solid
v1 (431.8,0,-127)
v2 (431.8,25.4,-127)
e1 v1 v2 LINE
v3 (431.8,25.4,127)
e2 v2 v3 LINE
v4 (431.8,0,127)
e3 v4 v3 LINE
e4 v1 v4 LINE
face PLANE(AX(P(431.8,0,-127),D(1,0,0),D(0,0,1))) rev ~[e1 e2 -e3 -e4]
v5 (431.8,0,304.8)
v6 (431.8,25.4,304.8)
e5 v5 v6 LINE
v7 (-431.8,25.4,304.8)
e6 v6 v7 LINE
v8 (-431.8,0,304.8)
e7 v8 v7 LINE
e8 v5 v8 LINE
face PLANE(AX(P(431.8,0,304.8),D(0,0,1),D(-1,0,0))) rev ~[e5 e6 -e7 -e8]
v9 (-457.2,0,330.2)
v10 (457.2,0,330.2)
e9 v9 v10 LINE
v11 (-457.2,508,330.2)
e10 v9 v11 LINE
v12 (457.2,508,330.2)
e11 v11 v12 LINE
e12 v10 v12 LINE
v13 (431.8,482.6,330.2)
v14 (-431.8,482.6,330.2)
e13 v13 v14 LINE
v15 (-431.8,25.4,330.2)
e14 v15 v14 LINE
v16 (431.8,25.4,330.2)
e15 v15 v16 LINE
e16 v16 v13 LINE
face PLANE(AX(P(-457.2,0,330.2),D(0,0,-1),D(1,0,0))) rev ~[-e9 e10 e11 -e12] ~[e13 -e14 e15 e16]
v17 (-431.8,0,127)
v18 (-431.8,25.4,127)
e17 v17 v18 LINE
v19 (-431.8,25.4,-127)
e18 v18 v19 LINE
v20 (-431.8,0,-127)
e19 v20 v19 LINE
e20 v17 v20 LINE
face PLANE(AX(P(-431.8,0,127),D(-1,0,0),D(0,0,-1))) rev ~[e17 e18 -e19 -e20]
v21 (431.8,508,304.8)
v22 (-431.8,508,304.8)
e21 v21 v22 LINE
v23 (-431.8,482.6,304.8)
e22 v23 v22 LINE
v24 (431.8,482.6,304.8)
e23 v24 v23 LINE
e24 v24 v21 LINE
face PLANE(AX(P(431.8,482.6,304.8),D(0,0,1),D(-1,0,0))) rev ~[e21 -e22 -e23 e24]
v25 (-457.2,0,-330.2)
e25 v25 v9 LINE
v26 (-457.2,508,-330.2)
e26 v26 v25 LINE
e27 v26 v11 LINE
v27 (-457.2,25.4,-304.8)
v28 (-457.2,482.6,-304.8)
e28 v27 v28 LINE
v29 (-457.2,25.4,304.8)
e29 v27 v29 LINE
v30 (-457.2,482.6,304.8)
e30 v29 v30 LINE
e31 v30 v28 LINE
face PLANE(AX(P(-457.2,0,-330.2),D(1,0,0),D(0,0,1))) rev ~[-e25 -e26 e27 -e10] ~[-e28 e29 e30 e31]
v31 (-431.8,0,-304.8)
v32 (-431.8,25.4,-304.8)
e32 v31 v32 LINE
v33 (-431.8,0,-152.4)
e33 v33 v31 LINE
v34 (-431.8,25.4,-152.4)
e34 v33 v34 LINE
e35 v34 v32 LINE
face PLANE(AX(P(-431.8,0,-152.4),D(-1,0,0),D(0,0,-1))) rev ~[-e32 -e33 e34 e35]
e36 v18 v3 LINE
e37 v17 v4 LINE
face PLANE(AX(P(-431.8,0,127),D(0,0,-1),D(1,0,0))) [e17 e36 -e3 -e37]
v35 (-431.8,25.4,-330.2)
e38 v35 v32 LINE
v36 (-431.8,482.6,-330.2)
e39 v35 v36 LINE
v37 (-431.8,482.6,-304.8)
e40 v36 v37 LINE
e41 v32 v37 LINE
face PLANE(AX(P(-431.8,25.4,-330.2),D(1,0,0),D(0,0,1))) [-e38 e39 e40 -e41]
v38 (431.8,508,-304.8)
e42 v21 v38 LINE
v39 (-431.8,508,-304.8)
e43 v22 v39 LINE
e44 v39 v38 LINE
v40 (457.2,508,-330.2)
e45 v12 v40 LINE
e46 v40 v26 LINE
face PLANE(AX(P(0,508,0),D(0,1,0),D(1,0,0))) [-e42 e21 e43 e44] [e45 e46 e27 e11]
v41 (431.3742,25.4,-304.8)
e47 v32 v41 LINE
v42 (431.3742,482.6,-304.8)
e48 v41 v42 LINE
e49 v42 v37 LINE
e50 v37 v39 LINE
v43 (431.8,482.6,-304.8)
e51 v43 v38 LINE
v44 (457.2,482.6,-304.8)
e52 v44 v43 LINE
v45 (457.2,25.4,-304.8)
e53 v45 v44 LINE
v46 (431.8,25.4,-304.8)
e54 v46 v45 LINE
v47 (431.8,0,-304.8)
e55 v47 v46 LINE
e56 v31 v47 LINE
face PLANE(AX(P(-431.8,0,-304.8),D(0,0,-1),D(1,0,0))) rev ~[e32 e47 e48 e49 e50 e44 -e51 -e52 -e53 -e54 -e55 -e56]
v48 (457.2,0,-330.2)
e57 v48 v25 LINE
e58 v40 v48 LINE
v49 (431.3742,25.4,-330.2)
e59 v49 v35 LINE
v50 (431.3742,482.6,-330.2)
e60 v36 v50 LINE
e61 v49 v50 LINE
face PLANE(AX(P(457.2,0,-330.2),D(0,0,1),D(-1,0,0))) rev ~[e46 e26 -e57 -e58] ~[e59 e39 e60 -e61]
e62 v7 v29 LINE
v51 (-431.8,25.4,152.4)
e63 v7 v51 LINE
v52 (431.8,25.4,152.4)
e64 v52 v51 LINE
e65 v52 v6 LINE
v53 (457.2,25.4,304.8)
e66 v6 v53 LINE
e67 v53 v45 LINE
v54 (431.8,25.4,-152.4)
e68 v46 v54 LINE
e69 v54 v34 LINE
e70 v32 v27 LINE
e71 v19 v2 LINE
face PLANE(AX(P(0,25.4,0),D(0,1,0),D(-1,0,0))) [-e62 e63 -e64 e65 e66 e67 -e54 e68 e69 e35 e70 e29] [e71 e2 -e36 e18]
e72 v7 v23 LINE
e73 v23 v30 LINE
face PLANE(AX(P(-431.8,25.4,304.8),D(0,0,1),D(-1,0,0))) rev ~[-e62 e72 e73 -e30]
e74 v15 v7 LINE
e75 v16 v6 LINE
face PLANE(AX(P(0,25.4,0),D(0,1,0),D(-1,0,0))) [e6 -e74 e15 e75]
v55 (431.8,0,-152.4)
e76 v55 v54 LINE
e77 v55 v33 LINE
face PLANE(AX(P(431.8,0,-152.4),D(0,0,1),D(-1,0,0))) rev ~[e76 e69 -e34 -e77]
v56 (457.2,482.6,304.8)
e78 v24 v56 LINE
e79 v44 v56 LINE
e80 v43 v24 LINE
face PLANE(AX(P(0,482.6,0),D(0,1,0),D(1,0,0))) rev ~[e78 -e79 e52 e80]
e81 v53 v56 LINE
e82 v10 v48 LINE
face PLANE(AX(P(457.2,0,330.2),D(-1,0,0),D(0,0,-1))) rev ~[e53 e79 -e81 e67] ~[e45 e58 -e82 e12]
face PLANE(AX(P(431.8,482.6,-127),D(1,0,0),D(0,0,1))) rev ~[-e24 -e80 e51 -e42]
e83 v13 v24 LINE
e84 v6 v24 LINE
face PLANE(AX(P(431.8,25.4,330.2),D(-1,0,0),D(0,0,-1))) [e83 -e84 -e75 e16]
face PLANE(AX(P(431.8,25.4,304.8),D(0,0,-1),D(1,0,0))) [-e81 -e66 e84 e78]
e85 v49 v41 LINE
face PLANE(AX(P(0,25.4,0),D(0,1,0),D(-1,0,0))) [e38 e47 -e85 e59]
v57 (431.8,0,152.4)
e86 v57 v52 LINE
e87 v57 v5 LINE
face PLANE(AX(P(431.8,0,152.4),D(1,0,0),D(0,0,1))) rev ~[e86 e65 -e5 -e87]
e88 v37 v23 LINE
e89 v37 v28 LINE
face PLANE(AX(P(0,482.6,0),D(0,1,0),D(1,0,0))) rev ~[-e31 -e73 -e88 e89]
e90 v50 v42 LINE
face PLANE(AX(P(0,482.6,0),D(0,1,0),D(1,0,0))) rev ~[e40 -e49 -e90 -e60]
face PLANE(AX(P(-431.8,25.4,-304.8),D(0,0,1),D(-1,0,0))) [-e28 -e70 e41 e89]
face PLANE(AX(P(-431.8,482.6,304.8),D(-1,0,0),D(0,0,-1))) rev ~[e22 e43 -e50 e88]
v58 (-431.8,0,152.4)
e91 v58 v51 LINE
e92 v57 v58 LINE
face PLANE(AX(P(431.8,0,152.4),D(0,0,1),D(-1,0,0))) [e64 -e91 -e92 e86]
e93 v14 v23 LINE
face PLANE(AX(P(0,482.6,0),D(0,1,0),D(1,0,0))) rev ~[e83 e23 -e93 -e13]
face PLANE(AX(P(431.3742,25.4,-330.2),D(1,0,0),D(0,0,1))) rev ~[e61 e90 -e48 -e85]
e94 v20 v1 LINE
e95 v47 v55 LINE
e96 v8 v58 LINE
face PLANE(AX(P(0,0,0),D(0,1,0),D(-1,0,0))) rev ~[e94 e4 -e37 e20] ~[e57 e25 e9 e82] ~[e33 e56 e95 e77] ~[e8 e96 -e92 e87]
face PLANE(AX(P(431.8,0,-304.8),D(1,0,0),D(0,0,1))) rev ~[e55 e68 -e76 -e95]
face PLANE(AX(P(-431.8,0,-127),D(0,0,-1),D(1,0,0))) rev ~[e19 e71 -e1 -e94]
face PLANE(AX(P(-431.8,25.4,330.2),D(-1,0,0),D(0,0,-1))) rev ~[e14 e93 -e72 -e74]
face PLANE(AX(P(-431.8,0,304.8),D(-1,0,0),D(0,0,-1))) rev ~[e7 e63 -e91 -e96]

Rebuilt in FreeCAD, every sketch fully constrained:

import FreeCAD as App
import Part
import Sketcher

V = App.Vector
Q = App.Units.Quantity

doc = App.newDocument("Part")
body = doc.addObject("PartDesign::Body", "Body")

sketch1 = doc.addObject("Sketcher::SketchObject", "Sketch")
body.addObject(sketch1)
sketch1.AttachmentSupport = (doc.XZ_Plane, [""])
sketch1.MapMode = "FlatFace"
sketch1.addGeometry([
    Part.LineSegment(V(-457, -330, 0), V(-457, 330, 0)),
    Part.LineSegment(V(-457, 330, 0), V(457, 330, 0)),
    Part.LineSegment(V(457, 330, 0), V(457, -330, 0)),
    Part.LineSegment(V(457, -330, 0), V(-457, -330, 0)),
    Part.LineSegment(V(-432, -305, 0), V(432, -305, 0)),
    Part.LineSegment(V(432, -305, 0), V(432, -152, 0)),
    Part.LineSegment(V(432, -152, 0), V(-432, -152, 0)),
    Part.LineSegment(V(-432, -152, 0), V(-432, -305, 0)),
    Part.LineSegment(V(-432, 127, 0), V(-432, -127, 0)),
    Part.LineSegment(V(-432, -127, 0), V(432, -127, 0)),
    Part.LineSegment(V(432, -127, 0), V(432, 127, 0)),
    Part.LineSegment(V(432, 127, 0), V(-432, 127, 0)),
    Part.LineSegment(V(-432, 305, 0), V(-432, 152, 0)),
    Part.LineSegment(V(-432, 152, 0), V(432, 152, 0)),
    Part.LineSegment(V(432, 152, 0), V(432, 305, 0)),
    Part.LineSegment(V(432, 305, 0), V(-432, 305, 0)),
], False)
sketch1.addConstraint([
    Sketcher.Constraint("Coincident", 0, 2, 1, 1),
    Sketcher.Constraint("Coincident", 1, 2, 2, 1),
    Sketcher.Constraint("Coincident", 2, 2, 3, 1),
    Sketcher.Constraint("Coincident", 3, 2, 0, 1),
    Sketcher.Constraint("Coincident", 4, 2, 5, 1),
    Sketcher.Constraint("Coincident", 5, 2, 6, 1),
    Sketcher.Constraint("Coincident", 6, 2, 7, 1),
    Sketcher.Constraint("Coincident", 7, 2, 4, 1),
    Sketcher.Constraint("Coincident", 8, 2, 9, 1),
    Sketcher.Constraint("Coincident", 9, 2, 10, 1),
    Sketcher.Constraint("Coincident", 10, 2, 11, 1),
    Sketcher.Constraint("Coincident", 11, 2, 8, 1),
    Sketcher.Constraint("Coincident", 12, 2, 13, 1),
    Sketcher.Constraint("Coincident", 13, 2, 14, 1),
    Sketcher.Constraint("Coincident", 14, 2, 15, 1),
    Sketcher.Constraint("Coincident", 15, 2, 12, 1),
    Sketcher.Constraint("Vertical", 0),
    Sketcher.Constraint("Horizontal", 1),
    Sketcher.Constraint("Vertical", 2),
    Sketcher.Constraint("Horizontal", 3),
    Sketcher.Constraint("Horizontal", 4),
    Sketcher.Constraint("Vertical", 5),
    Sketcher.Constraint("Horizontal", 6),
    Sketcher.Constraint("Vertical", 7),
    Sketcher.Constraint("Vertical", 8),
    Sketcher.Constraint("Horizontal", 9),
    Sketcher.Constraint("Vertical", 10),
    Sketcher.Constraint("Horizontal", 11),
    Sketcher.Constraint("Vertical", 12),
    Sketcher.Constraint("Horizontal", 13),
    Sketcher.Constraint("Vertical", 14),
    Sketcher.Constraint("Horizontal", 15),
    Sketcher.Constraint("Symmetric", 0, 2, 2, 2, -1, 1),
    Sketcher.Constraint("Symmetric", 8, 2, 10, 2, -1, 1),
    Sketcher.Constraint("Symmetric", 5, 2, 12, 2, -1, 1),
    Sketcher.Constraint("Symmetric", 7, 2, 14, 2, -1, 1),
    Sketcher.Constraint("Vertical", 7, 2, 8, 2),
    Sketcher.Constraint("Vertical", 5, 2, 9, 2),
    Sketcher.Constraint("DistanceX", 1, 1, 1, 2, Q("36 in")),
    Sketcher.Constraint("DistanceY", 0, 1, 0, 2, Q("26 in")),
    Sketcher.Constraint("DistanceY", 5, 1, 5, 2, Q("6 in")),
    Sketcher.Constraint("DistanceY", 5, 2, -1, 1, Q("6 in")),
    Sketcher.Constraint("DistanceX", 4, 2, 2, 2, Q("1 in")),
    Sketcher.Constraint("DistanceY", 6, 2, 8, 2, Q("1 in")),
])
pad1 = doc.addObject("PartDesign::Pad", "Pad")
body.addObject(pad1)
pad1.Profile = sketch1
pad1.Length = Q("1 in")
pad1.Reversed = True

sketch2 = doc.addObject("Sketcher::SketchObject", "Sketch001")
body.addObject(sketch2)
sketch2.AttachmentSupport = (doc.XZ_Plane, [""])
sketch2.MapMode = "FlatFace"
sketch2.AttachmentOffset = App.Placement(V(0, 0, -1 * 25.4), App.Rotation())
sketch2.addGeometry([
    Part.LineSegment(V(-432, -330, 0), V(-457, -330, 0)),
    Part.LineSegment(V(-457, -330, 0), V(-457, -305, 0)),
    Part.LineSegment(V(-457, -305, 0), V(-432, -305, 0)),
    Part.LineSegment(V(-432, -305, 0), V(-432, -330, 0)),
    Part.LineSegment(V(-432, 305, 0), V(-457, 305, 0)),
    Part.LineSegment(V(-457, 305, 0), V(-457, 330, 0)),
    Part.LineSegment(V(-457, 330, 0), V(-432, 330, 0)),
    Part.LineSegment(V(-432, 330, 0), V(-432, 305, 0)),
    Part.LineSegment(V(457, -330, 0), V(431, -330, 0)),
    Part.LineSegment(V(431, -330, 0), V(431, -305, 0)),
    Part.LineSegment(V(431, -305, 0), V(457, -305, 0)),
    Part.LineSegment(V(457, -305, 0), V(457, -330, 0)),
    Part.LineSegment(V(457, 305, 0), V(432, 305, 0)),
    Part.LineSegment(V(432, 305, 0), V(432, 330, 0)),
    Part.LineSegment(V(432, 330, 0), V(457, 330, 0)),
    Part.LineSegment(V(457, 330, 0), V(457, 305, 0)),
], False)
sketch2.addConstraint([
    Sketcher.Constraint("Coincident", 0, 2, 1, 1),
    Sketcher.Constraint("Coincident", 1, 2, 2, 1),
    Sketcher.Constraint("Coincident", 2, 2, 3, 1),
    Sketcher.Constraint("Coincident", 3, 2, 0, 1),
    Sketcher.Constraint("Coincident", 4, 2, 5, 1),
    Sketcher.Constraint("Coincident", 5, 2, 6, 1),
    Sketcher.Constraint("Coincident", 6, 2, 7, 1),
    Sketcher.Constraint("Coincident", 7, 2, 4, 1),
    Sketcher.Constraint("Coincident", 8, 2, 9, 1),
    Sketcher.Constraint("Coincident", 9, 2, 10, 1),
    Sketcher.Constraint("Coincident", 10, 2, 11, 1),
    Sketcher.Constraint("Coincident", 11, 2, 8, 1),
    Sketcher.Constraint("Coincident", 12, 2, 13, 1),
    Sketcher.Constraint("Coincident", 13, 2, 14, 1),
    Sketcher.Constraint("Coincident", 14, 2, 15, 1),
    Sketcher.Constraint("Coincident", 15, 2, 12, 1),
    Sketcher.Constraint("Horizontal", 0),
    Sketcher.Constraint("Vertical", 1),
    Sketcher.Constraint("Horizontal", 2),
    Sketcher.Constraint("Vertical", 3),
    Sketcher.Constraint("Horizontal", 4),
    Sketcher.Constraint("Vertical", 5),
    Sketcher.Constraint("Horizontal", 6),
    Sketcher.Constraint("Vertical", 7),
    Sketcher.Constraint("Horizontal", 8),
    Sketcher.Constraint("Vertical", 9),
    Sketcher.Constraint("Horizontal", 10),
    Sketcher.Constraint("Vertical", 11),
    Sketcher.Constraint("Horizontal", 12),
    Sketcher.Constraint("Vertical", 13),
    Sketcher.Constraint("Horizontal", 14),
    Sketcher.Constraint("Vertical", 15),
    Sketcher.Constraint("Symmetric", 4, 2, 10, 2, -1, 1),
    Sketcher.Constraint("Symmetric", 2, 2, 12, 2, -1, 1),
    Sketcher.Constraint("Symmetric", 0, 2, 14, 2, -1, 1),
    Sketcher.Constraint("Symmetric", 1, 2, 10, 2, -2),
    Sketcher.Constraint("Symmetric", 6, 2, 13, 2, -2),
    Sketcher.Constraint("Horizontal", 3, 2, 8, 2),
    Sketcher.Constraint("Equal", 14, 1),
    Sketcher.Constraint("DistanceX", 0, 2, 0, 1, Q("1 in")),
    Sketcher.Constraint("DistanceX", 0, 2, -1, 1, Q("18 in")),
    Sketcher.Constraint("DistanceY", 0, 2, -1, 1, Q("13 in")),
    Sketcher.Constraint("DistanceX", 8, 2, 8, 1, 25.8258),
])
pad2 = doc.addObject("PartDesign::Pad", "Pad001")
body.addObject(pad2)
pad2.Profile = sketch2
pad2.Length = Q("18 in")
pad2.Reversed = True

sketch3 = doc.addObject("Sketcher::SketchObject", "Sketch002")
body.addObject(sketch3)
sketch3.AttachmentSupport = (doc.XZ_Plane, [""])
sketch3.MapMode = "FlatFace"
sketch3.AttachmentOffset = App.Placement(V(0, 0, -19 * 25.4), App.Rotation())
sketch3.addGeometry([
    Part.LineSegment(V(457, -330, 0), V(-457, -330, 0)),
    Part.LineSegment(V(-457, -330, 0), V(-457, 330, 0)),
    Part.LineSegment(V(-457, 330, 0), V(457, 330, 0)),
    Part.LineSegment(V(457, 330, 0), V(457, -330, 0)),
    Part.LineSegment(V(432, 305, 0), V(-432, 305, 0)),
    Part.LineSegment(V(-432, 305, 0), V(-432, -305, 0)),
    Part.LineSegment(V(-432, -305, 0), V(432, -305, 0)),
    Part.LineSegment(V(432, -305, 0), V(432, 305, 0)),
], False)
sketch3.addConstraint([
    Sketcher.Constraint("Coincident", 0, 2, 1, 1),
    Sketcher.Constraint("Coincident", 1, 2, 2, 1),
    Sketcher.Constraint("Coincident", 2, 2, 3, 1),
    Sketcher.Constraint("Coincident", 3, 2, 0, 1),
    Sketcher.Constraint("Coincident", 4, 2, 5, 1),
    Sketcher.Constraint("Coincident", 5, 2, 6, 1),
    Sketcher.Constraint("Coincident", 6, 2, 7, 1),
    Sketcher.Constraint("Coincident", 7, 2, 4, 1),
    Sketcher.Constraint("Horizontal", 0),
    Sketcher.Constraint("Vertical", 1),
    Sketcher.Constraint("Horizontal", 2),
    Sketcher.Constraint("Vertical", 3),
    Sketcher.Constraint("Horizontal", 4),
    Sketcher.Constraint("Vertical", 5),
    Sketcher.Constraint("Horizontal", 6),
    Sketcher.Constraint("Vertical", 7),
    Sketcher.Constraint("Symmetric", 0, 2, 2, 2, -1, 1),
    Sketcher.Constraint("Symmetric", 4, 2, 6, 2, -1, 1),
    Sketcher.Constraint("DistanceX", 0, 2, 0, 1, Q("36 in")),
    Sketcher.Constraint("DistanceX", 4, 2, 4, 1, Q("34 in")),
    Sketcher.Constraint("DistanceY", 1, 1, 1, 2, Q("26 in")),
    Sketcher.Constraint("DistanceY", 5, 2, 5, 1, Q("24 in")),
])
pad3 = doc.addObject("PartDesign::Pad", "Pad002")
body.addObject(pad3)
pad3.Profile = sketch3
pad3.Length = Q("1 in")
pad3.Reversed = True

doc.recompute()
